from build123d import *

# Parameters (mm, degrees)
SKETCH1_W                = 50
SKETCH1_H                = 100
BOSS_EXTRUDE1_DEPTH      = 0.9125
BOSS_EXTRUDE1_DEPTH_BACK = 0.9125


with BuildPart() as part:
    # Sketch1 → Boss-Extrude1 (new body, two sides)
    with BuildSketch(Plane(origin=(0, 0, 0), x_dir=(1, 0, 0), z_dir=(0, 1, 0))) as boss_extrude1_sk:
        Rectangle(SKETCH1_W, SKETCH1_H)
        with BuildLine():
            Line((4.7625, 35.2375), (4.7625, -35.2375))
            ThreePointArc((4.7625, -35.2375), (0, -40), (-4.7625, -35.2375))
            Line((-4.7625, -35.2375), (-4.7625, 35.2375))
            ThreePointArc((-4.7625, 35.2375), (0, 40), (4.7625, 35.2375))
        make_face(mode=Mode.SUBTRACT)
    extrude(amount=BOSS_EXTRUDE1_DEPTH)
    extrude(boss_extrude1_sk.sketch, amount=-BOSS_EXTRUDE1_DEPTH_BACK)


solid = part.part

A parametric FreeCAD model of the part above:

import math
import FreeCAD as App
import Part
import Sketcher
from FreeCAD import Vector
Q = App.Units.Quantity


def add_polygon(sketch, points):
    """Adds a closed chain of lines whose ends are joined by coincident constraints."""
    first, n = sketch.GeometryCount, len(points)
    for a, b in zip(points, points[1:] + points[:1]):
        sketch.addGeometry(Part.LineSegment(App.Vector(*a, 0), App.Vector(*b, 0)), False)
    for i in range(n):
        sketch.addConstraint(Sketcher.Constraint("Coincident", first + i, 2, first + (i + 1) % n, 1))

doc = App.newDocument("Part")
params = doc.addObject("Spreadsheet::Sheet", "Params")
for row, (alias, value) in enumerate([
    ("sketch1_width", "50 mm"),
    ("sketch1_height", "100 mm"),
    ("pad1_length", "0.9125 mm"),
    ("pad1_length2", "0.9125 mm"),
], start=1):
    params.set(f"A{row}", alias)
    params.set(f"B{row}", "=" + value)
    params.setAlias(f"B{row}", alias)

body = doc.addObject("PartDesign::Body", "Body")

sketch1 = body.newObject("Sketcher::SketchObject", "Sketch")
sketch1.AttachmentSupport = (doc.getObject("XZ_Plane"), [""])
sketch1.MapMode = "FlatFace"
add_polygon(sketch1, [(-25, -50), (-25, 50), (25, 50), (25, -50)])
sketch1.addGeometry(Part.ArcOfCircle(Part.Circle(Vector(0, -35.2375, 0), Vector(0, 0, 1), 4.7625), math.radians(180), math.radians(360)), False)
sketch1.addGeometry(Part.LineSegment(Vector(4.7625, -35.2375, 0), Vector(4.7625, 35.2375, 0)), False)
sketch1.addGeometry(Part.ArcOfCircle(Part.Circle(Vector(0, 35.2375, 0), Vector(0, 0, 1), 4.7625), math.radians(0), math.radians(180)), False)
sketch1.addGeometry(Part.LineSegment(Vector(-4.7625, 35.2375, 0), Vector(-4.7625, -35.2375, 0)), False)
sketch1.addConstraint(Sketcher.Constraint("Tangent", 4, 2, 5, 1))
sketch1.addConstraint(Sketcher.Constraint("Tangent", 5, 2, 6, 1))
sketch1.addConstraint(Sketcher.Constraint("Tangent", 6, 2, 7, 1))
sketch1.addConstraint(Sketcher.Constraint("Tangent", 7, 2, 4, 1))
sketch1.addConstraint(Sketcher.Constraint("Vertical", 0))
sketch1.addConstraint(Sketcher.Constraint("Horizontal", 1))
sketch1.addConstraint(Sketcher.Constraint("Vertical", 2))
sketch1.addConstraint(Sketcher.Constraint("Horizontal", 3))
sketch1.addConstraint(Sketcher.Constraint("Vertical", 5))
sketch1.addConstraint(Sketcher.Constraint("Vertical", 7))
sketch1.addConstraint(Sketcher.Constraint("Symmetric", 4, 3, 6, 3, -1, 1))
sketch1.addConstraint(Sketcher.Constraint("Symmetric", 0, 2, 2, 2, -1, 1))
sketch1.addConstraint(Sketcher.Constraint("DistanceX", 1, 1, 1, 2, Q("50 mm")))
sketch1.addConstraint(Sketcher.Constraint("DistanceY", 0, 1, 0, 2, Q("100 mm")))
sketch1.addConstraint(Sketcher.Constraint("Radius", 4, Q("4.7625 mm")))
sketch1.addConstraint(Sketcher.Constraint("DistanceY", 5, 1, 5, 2, Q("70.475 mm")))
sketch1.setExpression("Constraints[16]", "Params.sketch1_width")
sketch1.setExpression("Constraints[17]", "Params.sketch1_height")
pad1 = body.newObject("PartDesign::Pad", "Pad")
pad1.Profile = sketch1
pad1.Type = "TwoLengths"
pad1.setExpression("Length", "Params.pad1_length")
pad1.setExpression("Length2", "Params.pad1_length2")
pad1.Reversed = True

doc.recompute()
